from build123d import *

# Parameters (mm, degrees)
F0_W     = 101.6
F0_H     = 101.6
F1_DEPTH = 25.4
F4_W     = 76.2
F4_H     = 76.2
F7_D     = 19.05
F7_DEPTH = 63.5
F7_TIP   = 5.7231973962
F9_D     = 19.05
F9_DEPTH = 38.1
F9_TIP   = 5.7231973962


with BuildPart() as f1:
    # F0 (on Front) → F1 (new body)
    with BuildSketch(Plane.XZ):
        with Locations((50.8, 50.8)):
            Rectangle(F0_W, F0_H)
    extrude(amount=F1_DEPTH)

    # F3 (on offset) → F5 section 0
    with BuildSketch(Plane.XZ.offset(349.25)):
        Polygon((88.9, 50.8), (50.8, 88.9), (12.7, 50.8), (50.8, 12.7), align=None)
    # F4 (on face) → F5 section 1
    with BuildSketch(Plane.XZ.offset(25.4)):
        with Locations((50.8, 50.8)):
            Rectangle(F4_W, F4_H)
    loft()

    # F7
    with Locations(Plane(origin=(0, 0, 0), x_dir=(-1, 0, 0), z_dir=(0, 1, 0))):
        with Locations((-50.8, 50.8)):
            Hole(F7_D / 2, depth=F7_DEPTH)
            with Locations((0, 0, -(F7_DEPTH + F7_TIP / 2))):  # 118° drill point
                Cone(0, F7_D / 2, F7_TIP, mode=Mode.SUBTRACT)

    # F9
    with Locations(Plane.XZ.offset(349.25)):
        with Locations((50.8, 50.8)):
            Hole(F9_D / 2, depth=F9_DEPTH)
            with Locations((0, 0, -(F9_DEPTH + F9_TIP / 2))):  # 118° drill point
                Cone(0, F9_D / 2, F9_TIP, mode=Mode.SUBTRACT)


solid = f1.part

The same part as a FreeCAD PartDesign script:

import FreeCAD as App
import Part
import Sketcher

V = App.Vector
Q = App.Units.Quantity

doc = App.newDocument("Part")
params = doc.addObject("Spreadsheet::Sheet", "Params")
for row, (alias, value) in enumerate([
    ("sketch1_width", "4 in"),
    ("pad1_length", "1 in"),
    ("sketch3_width", "3 in"),
    ("sketch4_diameter", "0.75 in"),
    ("hole_diameter", "0.75 in"),
    ("hole_depth", "2.5 in"),
    ("sketch5_diameter", "0.75 in"),
    ("hole2_diameter", "0.75 in"),
    ("hole2_depth", "1.5 in"),
], start=1):
    params.set(f"A{row}", alias)
    params.set(f"B{row}", "=" + value)
    params.setAlias(f"B{row}", alias)

body = doc.addObject("PartDesign::Body", "Body")

sketch1 = body.newObject("Sketcher::SketchObject", "Sketch")
sketch1.AttachmentSupport = (doc.getObject("XZ_Plane"), [""])
sketch1.MapMode = "FlatFace"
sketch1.addGeometry(Part.LineSegment(V(0, 101.6, 0), V(0, 0, 0)), False)
sketch1.addGeometry(Part.LineSegment(V(0, 0, 0), V(101.6, 0, 0)), False)
sketch1.addGeometry(Part.LineSegment(V(101.6, 0, 0), V(101.6, 101.6, 0)), False)
sketch1.addGeometry(Part.LineSegment(V(101.6, 101.6, 0), V(0, 101.6, 0)), False)
sketch1.addConstraint(Sketcher.Constraint("Coincident", 0, 2, 1, 1))
sketch1.addConstraint(Sketcher.Constraint("Coincident", 1, 2, 2, 1))
sketch1.addConstraint(Sketcher.Constraint("Coincident", 2, 2, 3, 1))
sketch1.addConstraint(Sketcher.Constraint("Coincident", 3, 2, 0, 1))
sketch1.addConstraint(Sketcher.Constraint("Vertical", 0))
sketch1.addConstraint(Sketcher.Constraint("Horizontal", 1))
sketch1.addConstraint(Sketcher.Constraint("Vertical", 2))
sketch1.addConstraint(Sketcher.Constraint("Horizontal", 3))
sketch1.addConstraint(Sketcher.Constraint("Coincident", 0, 2, -1, 1))
sketch1.addConstraint(Sketcher.Constraint("Equal", 3, 0))
sketch1.addConstraint(Sketcher.Constraint("DistanceX", 1, 1, 1, 2, Q("4 in")))
sketch1.setExpression("Constraints[10]", "Params.sketch1_width")
pad1 = body.newObject("PartDesign::Pad", "Pad")
pad1.Profile = sketch1
pad1.setExpression("Length", "Params.pad1_length")

sketch2 = body.newObject("Sketcher::SketchObject", "Sketch001")
sketch2.AttachmentSupport = (doc.getObject("XZ_Plane"), [""])
sketch2.MapMode = "FlatFace"
sketch2.AttachmentOffset = App.Placement(V(0, 0, 13.75 * 25.4), App.Rotation())
sketch2.addGeometry(Part.LineSegment(V(88.9, 50.8, 0), V(50.8, 88.9, 0)), False)
sketch2.addGeometry(Part.LineSegment(V(50.8, 88.9, 0), V(12.7, 50.8, 0)), False)
sketch2.addGeometry(Part.LineSegment(V(12.7, 50.8, 0), V(50.8, 12.7, 0)), False)
sketch2.addGeometry(Part.LineSegment(V(50.8, 12.7, 0), V(88.9, 50.8, 0)), False)
sketch2.addConstraint(Sketcher.Constraint("Coincident", 0, 2, 1, 1))
sketch2.addConstraint(Sketcher.Constraint("Coincident", 1, 2, 2, 1))
sketch2.addConstraint(Sketcher.Constraint("Coincident", 2, 2, 3, 1))
sketch2.addConstraint(Sketcher.Constraint("Coincident", 3, 2, 0, 1))
sketch2.addConstraint(Sketcher.Constraint("Perpendicular", 0, 1))
sketch2.addConstraint(Sketcher.Constraint("Perpendicular", 1, 2))
sketch2.addConstraint(Sketcher.Constraint("Perpendicular", 2, 3))
sketch2.addConstraint(Sketcher.Constraint("Horizontal", 1, 2, 3, 2))
sketch2.addConstraint(Sketcher.Constraint("Vertical", 0, 2, 2, 2))
sketch2.addConstraint(Sketcher.Constraint("DistanceX", -1, 1, 0, 2, Q("2 in")))
sketch2.addConstraint(Sketcher.Constraint("DistanceY", -1, 1, 1, 2, Q("2 in")))
sketch2.addConstraint(Sketcher.Constraint("DistanceY", 2, 2, 0, 2, Q("3 in")))

sketch3 = body.newObject("Sketcher::SketchObject", "Sketch002")
sketch3.AttachmentSupport = (doc.getObject("XZ_Plane"), [""])
sketch3.MapMode = "FlatFace"
sketch3.AttachmentOffset = App.Placement(V(0, 0, 1 * 25.4), App.Rotation())
sketch3.addGeometry(Part.LineSegment(V(12.7, 88.9, 0), V(12.7, 12.7, 0)), False)
sketch3.addGeometry(Part.LineSegment(V(12.7, 12.7, 0), V(88.9, 12.7, 0)), False)
sketch3.addGeometry(Part.LineSegment(V(88.9, 12.7, 0), V(88.9, 88.9, 0)), False)
sketch3.addGeometry(Part.LineSegment(V(88.9, 88.9, 0), V(12.7, 88.9, 0)), False)
sketch3.addConstraint(Sketcher.Constraint("Coincident", 0, 2, 1, 1))
sketch3.addConstraint(Sketcher.Constraint("Coincident", 1, 2, 2, 1))
sketch3.addConstraint(Sketcher.Constraint("Coincident", 2, 2, 3, 1))
sketch3.addConstraint(Sketcher.Constraint("Coincident", 3, 2, 0, 1))
sketch3.addConstraint(Sketcher.Constraint("Vertical", 0))
sketch3.addConstraint(Sketcher.Constraint("Horizontal", 1))
sketch3.addConstraint(Sketcher.Constraint("Vertical", 2))
sketch3.addConstraint(Sketcher.Constraint("Horizontal", 3))
sketch3.addConstraint(Sketcher.Constraint("Equal", 3, 0))
sketch3.addConstraint(Sketcher.Constraint("DistanceX", 1, 1, 1, 2, Q("3 in")))
sketch3.addConstraint(Sketcher.Constraint("DistanceX", -1, 1, 0, 2, Q("0.5 in")))
sketch3.addConstraint(Sketcher.Constraint("DistanceY", -1, 1, 0, 2, Q("0.5 in")))
sketch3.setExpression("Constraints[9]", "Params.sketch3_width")

additiveloft = body.newObject("PartDesign::AdditiveLoft", "AdditiveLoft")
additiveloft.Profile = sketch2
additiveloft.Sections = [sketch3]

sketch4 = body.newObject("Sketcher::SketchObject", "Sketch003")
sketch4.AttachmentSupport = (doc.getObject("XZ_Plane"), [""])
sketch4.MapMode = "FlatFace"
sketch4.addGeometry(Part.Circle(V(50.8, 50.8, 0), V(0, 0, 1), 9.525), False)
sketch4.addConstraint(Sketcher.Constraint("Diameter", 0, Q("0.75 in")))
sketch4.addConstraint(Sketcher.Constraint("DistanceX", -1, 1, 0, 3, Q("2 in")))
sketch4.addConstraint(Sketcher.Constraint("DistanceY", -1, 1, 0, 3, Q("2 in")))
sketch4.setExpression("Constraints[0]", "Params.sketch4_diameter")
doc.recompute()
hole = body.newObject("PartDesign::Hole", "Hole")
hole.Profile = sketch4
hole.ThreadType = "None"
hole.setExpression("Diameter", "Params.hole_diameter")
hole.DepthType = "Dimension"
hole.setExpression("Depth", "Params.hole_depth")
hole.DrillPoint = "Angled"
hole.DrillPointAngle = 118
hole.Reversed = True

sketch5 = body.newObject("Sketcher::SketchObject", "Sketch004")
sketch5.AttachmentSupport = (doc.getObject("XZ_Plane"), [""])
sketch5.MapMode = "FlatFace"
sketch5.AttachmentOffset = App.Placement(V(0, 0, 13.75 * 25.4), App.Rotation())
sketch5.addGeometry(Part.Circle(V(50.8, 50.8, 0), V(0, 0, 1), 9.525), False)
sketch5.addConstraint(Sketcher.Constraint("Diameter", 0, Q("0.75 in")))
sketch5.addConstraint(Sketcher.Constraint("DistanceX", -1, 1, 0, 3, Q("2 in")))
sketch5.addConstraint(Sketcher.Constraint("DistanceY", -1, 1, 0, 3, Q("2 in")))
sketch5.setExpression("Constraints[0]", "Params.sketch5_diameter")
doc.recompute()
hole2 = body.newObject("PartDesign::Hole", "Hole001")
hole2.Profile = sketch5
hole2.ThreadType = "None"
hole2.setExpression("Diameter", "Params.hole2_diameter")
hole2.DepthType = "Dimension"
hole2.setExpression("Depth", "Params.hole2_depth")
hole2.DrillPoint = "Angled"
hole2.DrillPointAngle = 118

doc.recompute()
